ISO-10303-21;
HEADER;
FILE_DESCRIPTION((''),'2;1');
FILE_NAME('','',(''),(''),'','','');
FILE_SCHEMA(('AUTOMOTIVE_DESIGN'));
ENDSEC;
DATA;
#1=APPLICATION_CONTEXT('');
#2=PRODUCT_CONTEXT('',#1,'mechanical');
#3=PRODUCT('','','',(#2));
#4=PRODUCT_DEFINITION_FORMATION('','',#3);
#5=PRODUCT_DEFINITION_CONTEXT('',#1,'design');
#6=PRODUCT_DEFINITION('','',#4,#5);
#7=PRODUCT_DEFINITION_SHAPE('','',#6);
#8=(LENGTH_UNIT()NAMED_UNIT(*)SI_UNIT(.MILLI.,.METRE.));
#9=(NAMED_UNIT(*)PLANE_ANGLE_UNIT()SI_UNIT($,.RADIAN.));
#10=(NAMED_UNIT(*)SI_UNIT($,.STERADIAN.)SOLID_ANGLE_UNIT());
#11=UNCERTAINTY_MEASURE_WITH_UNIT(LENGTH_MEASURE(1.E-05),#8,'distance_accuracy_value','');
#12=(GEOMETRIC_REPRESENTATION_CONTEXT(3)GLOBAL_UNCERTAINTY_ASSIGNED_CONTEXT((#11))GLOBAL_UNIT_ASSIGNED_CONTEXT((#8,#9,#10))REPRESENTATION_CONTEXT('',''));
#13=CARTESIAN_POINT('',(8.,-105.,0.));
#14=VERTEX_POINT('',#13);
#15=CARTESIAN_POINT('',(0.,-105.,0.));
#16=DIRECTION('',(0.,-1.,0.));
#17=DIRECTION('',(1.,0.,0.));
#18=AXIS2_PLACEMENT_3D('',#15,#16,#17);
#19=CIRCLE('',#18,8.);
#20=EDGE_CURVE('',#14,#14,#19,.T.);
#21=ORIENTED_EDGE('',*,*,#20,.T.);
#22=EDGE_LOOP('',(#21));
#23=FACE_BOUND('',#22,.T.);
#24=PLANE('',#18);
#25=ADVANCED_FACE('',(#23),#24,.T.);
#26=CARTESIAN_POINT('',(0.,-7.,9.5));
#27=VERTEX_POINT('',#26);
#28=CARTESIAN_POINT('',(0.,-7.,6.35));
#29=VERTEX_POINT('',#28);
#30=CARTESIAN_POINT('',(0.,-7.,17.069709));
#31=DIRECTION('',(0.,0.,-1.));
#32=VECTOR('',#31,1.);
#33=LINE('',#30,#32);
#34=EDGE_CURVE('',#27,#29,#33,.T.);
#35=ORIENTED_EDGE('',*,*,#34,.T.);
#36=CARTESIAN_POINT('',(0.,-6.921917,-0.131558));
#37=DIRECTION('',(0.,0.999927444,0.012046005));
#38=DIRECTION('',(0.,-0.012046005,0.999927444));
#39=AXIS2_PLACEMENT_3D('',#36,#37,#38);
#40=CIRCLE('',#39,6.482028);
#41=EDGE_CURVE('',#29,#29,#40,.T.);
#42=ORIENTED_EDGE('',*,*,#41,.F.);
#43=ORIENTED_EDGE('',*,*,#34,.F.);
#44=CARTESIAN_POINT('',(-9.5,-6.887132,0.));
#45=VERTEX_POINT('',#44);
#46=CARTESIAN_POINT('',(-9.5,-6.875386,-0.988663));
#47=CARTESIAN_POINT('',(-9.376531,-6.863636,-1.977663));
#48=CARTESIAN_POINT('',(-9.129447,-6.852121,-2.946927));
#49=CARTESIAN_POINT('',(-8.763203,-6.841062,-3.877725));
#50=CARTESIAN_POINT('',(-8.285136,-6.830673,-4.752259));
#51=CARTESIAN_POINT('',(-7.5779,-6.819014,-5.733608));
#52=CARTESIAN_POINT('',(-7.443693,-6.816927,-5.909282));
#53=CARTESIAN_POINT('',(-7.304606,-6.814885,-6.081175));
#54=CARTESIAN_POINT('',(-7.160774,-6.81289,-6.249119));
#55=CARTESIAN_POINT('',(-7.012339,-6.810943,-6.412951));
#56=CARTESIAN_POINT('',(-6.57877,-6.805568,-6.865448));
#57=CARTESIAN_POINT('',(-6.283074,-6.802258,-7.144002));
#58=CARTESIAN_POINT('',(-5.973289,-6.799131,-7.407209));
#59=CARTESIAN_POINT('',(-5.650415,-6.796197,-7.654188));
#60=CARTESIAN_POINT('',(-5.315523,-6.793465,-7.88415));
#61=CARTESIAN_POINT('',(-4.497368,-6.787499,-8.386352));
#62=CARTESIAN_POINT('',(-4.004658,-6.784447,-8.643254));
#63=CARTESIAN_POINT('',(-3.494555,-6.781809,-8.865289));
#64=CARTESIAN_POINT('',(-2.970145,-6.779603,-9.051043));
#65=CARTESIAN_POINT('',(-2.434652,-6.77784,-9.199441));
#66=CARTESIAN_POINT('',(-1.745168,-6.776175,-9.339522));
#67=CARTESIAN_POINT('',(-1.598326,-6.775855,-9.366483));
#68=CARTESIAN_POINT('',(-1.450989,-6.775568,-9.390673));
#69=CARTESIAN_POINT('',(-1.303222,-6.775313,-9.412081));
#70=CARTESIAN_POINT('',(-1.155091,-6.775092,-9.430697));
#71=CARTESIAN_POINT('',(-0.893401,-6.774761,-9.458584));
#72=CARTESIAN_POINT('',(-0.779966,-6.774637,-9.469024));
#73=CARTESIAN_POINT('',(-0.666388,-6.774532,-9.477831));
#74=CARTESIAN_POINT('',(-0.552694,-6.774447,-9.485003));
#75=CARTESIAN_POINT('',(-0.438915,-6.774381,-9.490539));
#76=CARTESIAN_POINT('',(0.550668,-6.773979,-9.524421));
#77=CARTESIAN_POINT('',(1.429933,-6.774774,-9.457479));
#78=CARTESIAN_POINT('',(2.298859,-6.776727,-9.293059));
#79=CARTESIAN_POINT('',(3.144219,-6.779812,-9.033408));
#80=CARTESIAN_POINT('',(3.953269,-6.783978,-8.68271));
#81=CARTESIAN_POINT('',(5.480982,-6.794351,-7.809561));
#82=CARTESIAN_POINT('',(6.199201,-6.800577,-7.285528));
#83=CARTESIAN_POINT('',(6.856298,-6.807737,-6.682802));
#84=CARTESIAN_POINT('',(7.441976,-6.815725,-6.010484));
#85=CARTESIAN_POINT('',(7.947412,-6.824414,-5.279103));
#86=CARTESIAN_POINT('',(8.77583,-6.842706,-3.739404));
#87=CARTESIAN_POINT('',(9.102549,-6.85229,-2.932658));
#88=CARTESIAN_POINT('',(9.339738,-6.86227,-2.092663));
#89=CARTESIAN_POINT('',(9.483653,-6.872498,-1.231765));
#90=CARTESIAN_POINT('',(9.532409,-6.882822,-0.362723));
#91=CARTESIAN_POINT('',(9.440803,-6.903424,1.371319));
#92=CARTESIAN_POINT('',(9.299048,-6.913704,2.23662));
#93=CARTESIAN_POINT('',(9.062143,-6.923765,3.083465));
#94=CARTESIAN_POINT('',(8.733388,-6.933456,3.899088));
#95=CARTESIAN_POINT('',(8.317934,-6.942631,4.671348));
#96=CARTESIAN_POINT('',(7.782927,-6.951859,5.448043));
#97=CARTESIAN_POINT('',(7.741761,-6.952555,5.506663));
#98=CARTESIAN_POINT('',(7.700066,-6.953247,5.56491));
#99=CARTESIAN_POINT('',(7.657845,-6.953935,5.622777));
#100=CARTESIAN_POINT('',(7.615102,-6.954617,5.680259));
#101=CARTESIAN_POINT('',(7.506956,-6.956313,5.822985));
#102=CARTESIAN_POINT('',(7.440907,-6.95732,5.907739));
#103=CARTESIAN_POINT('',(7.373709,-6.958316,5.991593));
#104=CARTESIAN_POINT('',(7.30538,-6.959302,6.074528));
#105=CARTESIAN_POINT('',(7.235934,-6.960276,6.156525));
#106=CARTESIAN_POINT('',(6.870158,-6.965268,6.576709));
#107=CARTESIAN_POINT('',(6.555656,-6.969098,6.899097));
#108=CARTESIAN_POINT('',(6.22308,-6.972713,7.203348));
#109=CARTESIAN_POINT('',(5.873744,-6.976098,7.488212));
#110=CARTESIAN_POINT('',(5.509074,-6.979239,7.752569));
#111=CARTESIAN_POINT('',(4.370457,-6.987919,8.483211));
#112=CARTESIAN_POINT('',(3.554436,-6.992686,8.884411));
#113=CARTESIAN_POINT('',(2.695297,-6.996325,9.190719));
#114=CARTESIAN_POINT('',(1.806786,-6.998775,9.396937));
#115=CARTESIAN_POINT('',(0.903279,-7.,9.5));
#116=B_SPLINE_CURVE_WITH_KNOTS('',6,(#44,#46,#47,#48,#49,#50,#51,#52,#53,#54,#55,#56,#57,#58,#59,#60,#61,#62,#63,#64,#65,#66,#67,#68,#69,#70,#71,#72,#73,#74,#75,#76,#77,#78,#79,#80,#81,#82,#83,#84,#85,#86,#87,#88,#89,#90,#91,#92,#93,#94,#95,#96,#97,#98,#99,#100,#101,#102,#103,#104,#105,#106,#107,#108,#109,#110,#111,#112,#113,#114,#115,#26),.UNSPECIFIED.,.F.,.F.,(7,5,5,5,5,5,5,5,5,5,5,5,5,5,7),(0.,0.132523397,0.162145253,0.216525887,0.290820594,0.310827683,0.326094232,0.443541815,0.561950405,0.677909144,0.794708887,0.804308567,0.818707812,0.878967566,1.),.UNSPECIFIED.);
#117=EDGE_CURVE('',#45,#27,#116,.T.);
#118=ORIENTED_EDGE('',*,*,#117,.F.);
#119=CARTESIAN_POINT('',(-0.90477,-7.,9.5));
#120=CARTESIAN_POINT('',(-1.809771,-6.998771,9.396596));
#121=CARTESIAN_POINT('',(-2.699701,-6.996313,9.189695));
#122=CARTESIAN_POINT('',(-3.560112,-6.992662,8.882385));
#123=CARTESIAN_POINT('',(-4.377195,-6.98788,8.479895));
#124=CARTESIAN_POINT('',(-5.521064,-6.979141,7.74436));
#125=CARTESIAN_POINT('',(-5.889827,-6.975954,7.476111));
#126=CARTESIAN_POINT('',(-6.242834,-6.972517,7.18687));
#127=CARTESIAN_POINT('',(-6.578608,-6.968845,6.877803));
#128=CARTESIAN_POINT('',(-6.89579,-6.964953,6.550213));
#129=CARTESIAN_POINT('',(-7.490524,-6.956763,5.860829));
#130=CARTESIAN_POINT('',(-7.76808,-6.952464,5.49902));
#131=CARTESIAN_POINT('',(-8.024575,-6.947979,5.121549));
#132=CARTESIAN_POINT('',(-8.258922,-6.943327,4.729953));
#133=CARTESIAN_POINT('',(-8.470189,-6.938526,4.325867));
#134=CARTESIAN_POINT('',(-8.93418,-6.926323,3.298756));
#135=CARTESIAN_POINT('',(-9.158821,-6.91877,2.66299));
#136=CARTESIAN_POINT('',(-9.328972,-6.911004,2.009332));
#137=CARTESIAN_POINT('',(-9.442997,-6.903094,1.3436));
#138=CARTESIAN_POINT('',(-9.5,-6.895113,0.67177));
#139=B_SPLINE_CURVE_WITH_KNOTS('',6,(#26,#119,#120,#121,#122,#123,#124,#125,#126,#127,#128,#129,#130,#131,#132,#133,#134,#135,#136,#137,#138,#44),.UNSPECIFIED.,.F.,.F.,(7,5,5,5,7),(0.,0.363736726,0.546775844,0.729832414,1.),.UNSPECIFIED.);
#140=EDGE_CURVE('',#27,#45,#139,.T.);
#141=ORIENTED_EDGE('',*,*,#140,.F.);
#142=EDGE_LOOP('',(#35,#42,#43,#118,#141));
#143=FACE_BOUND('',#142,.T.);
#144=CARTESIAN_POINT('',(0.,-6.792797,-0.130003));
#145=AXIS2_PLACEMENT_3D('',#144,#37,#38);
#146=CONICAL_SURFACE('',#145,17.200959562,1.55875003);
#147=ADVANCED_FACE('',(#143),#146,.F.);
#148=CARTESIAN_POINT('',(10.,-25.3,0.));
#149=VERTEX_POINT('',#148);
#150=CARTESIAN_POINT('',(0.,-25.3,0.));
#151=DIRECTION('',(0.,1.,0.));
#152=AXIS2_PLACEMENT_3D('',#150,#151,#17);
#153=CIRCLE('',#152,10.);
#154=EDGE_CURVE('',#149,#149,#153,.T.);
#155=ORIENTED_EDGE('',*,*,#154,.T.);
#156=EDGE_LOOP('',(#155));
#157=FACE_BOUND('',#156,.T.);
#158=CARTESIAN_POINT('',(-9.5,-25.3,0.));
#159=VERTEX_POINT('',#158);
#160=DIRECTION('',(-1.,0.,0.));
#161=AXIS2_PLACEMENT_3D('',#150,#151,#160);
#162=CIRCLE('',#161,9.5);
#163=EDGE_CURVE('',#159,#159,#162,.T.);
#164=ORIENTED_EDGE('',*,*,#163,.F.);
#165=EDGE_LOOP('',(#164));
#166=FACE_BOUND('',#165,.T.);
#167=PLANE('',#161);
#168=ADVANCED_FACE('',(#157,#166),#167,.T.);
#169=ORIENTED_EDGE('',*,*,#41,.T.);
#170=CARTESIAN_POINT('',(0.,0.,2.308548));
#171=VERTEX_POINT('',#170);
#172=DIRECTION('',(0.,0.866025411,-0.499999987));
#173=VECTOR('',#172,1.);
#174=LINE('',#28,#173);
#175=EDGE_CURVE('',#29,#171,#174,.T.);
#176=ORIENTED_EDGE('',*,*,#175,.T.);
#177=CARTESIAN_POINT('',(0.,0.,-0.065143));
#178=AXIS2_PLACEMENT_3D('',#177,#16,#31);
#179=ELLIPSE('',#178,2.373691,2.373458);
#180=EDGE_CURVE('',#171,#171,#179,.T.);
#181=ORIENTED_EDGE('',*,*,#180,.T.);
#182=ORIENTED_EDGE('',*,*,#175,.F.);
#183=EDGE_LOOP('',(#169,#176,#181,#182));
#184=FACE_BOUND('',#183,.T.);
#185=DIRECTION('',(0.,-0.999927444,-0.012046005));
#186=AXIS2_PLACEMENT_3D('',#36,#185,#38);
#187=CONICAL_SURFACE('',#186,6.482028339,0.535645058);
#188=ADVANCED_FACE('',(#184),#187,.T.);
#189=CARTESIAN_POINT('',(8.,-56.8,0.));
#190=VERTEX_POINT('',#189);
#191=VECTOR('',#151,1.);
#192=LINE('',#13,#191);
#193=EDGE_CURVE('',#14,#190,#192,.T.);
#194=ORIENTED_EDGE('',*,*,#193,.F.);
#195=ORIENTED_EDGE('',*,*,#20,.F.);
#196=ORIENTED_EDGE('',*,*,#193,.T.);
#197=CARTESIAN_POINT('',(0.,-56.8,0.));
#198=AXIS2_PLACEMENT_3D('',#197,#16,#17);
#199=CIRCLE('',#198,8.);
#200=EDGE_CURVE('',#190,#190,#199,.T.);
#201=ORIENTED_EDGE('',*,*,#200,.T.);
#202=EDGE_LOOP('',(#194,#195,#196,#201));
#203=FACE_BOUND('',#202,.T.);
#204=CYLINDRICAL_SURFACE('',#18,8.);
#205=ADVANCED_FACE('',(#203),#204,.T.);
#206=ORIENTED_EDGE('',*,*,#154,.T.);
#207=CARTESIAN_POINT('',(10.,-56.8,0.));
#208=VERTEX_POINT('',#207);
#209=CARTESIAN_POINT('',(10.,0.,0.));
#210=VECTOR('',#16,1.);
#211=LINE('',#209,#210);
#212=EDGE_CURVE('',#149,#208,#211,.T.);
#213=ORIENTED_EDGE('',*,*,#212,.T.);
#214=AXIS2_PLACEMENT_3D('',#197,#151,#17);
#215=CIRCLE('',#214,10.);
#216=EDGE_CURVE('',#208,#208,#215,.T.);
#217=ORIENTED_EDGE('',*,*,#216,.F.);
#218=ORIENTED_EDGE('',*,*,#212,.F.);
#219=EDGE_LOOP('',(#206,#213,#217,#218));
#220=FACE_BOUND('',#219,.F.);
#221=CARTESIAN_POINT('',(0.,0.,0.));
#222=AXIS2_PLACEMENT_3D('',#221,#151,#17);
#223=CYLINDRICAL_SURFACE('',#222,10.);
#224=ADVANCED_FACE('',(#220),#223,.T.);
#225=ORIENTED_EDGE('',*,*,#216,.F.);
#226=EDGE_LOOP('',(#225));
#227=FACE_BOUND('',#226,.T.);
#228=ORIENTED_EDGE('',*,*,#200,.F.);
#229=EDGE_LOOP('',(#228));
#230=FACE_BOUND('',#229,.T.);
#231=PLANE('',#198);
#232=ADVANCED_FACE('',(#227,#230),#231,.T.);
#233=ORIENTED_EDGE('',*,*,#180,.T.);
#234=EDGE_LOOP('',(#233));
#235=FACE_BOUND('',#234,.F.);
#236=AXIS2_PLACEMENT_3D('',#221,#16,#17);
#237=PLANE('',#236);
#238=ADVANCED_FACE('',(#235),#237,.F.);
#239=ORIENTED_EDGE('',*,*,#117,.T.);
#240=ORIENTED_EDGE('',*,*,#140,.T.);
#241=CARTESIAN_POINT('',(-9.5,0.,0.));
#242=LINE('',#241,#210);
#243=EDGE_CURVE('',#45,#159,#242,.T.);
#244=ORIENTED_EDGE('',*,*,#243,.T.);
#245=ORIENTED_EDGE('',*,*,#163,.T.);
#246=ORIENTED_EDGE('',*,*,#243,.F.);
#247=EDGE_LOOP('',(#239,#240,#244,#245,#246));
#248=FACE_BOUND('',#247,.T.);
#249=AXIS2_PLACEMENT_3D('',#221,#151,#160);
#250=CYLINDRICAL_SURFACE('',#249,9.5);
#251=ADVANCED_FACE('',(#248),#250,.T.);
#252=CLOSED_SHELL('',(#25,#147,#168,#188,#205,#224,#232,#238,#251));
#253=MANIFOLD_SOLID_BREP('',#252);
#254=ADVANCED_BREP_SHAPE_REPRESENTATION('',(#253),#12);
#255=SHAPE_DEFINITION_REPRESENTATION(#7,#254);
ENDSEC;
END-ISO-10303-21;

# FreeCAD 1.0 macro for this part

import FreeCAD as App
import Part
import Sketcher

V = App.Vector
Q = App.Units.Quantity


def add_polygon(sketch, points):
    """Adds a closed chain of lines whose ends are joined by coincident constraints."""
    first, n = sketch.GeometryCount, len(points)
    for a, b in zip(points, points[1:] + points[:1]):
        sketch.addGeometry(Part.LineSegment(App.Vector(*a, 0), App.Vector(*b, 0)), False)
    for i in range(n):
        sketch.addConstraint(Sketcher.Constraint("Coincident", first + i, 2, first + (i + 1) % n, 1))

doc = App.newDocument("Part")
params = doc.addObject("Spreadsheet::Sheet", "Params")
for row, (alias, value) in enumerate([
    ("sketch1_diameter", "20 mm"),
    ("pad1_length", "105 mm"),
    ("sketch2_diameter", "19 mm"),
    ("pocket1_length", "25.3 mm"),
    ("sketch3_length", "12.7 mm"),
    ("groove_angle", "360 deg"),
    ("sketch4_diameter", "16 mm"),
    ("pocket2_length", "48.2 mm"),
], start=1):
    params.set(f"A{row}", alias)
    params.set(f"B{row}", "=" + value)
    params.setAlias(f"B{row}", alias)

body = doc.addObject("PartDesign::Body", "Body")

sketch1 = body.newObject("Sketcher::SketchObject", "Sketch")
sketch1.AttachmentSupport = (doc.getObject("XZ_Plane"), [""])
sketch1.MapMode = "FlatFace"
sketch1.addGeometry(Part.Circle(V(0, 0, 0), V(0, 0, 1), 10), False)
sketch1.addConstraint([
    Sketcher.Constraint("Coincident", 0, 3, -1, 1),
    Sketcher.Constraint("Diameter", 0, 20.0),
])
sketch1.setExpression("Constraints[1]", "Params.sketch1_diameter")
pad1 = body.newObject("PartDesign::Pad", "Pad")
pad1.Profile = sketch1
pad1.setExpression("Length", "Params.pad1_length")

sketch2 = body.newObject("Sketcher::SketchObject", "Sketch001")
sketch2.AttachmentSupport = (doc.getObject("XZ_Plane"), [""])
sketch2.MapMode = "FlatFace"
sketch2.addGeometry([
    Part.Circle(V(0, 0, 0), V(0, 0, 1), 16),
    Part.Circle(V(0, 0, 0), V(0, 0, 1), 10),
], False)
sketch2.addConstraint([
    Sketcher.Constraint("Coincident", 0, 3, -1, 1),
    Sketcher.Constraint("Coincident", 1, 3, -1, 1),
    Sketcher.Constraint("Diameter", 1, 19.0),
    Sketcher.Constraint("Diameter", 0, 31.65997),
])
sketch2.setExpression("Constraints[2]", "Params.sketch2_diameter")
pocket1 = body.newObject("PartDesign::Pocket", "Pocket")
pocket1.Profile = sketch2
pocket1.setExpression("Length", "Params.pocket1_length")
pocket1.Reversed = True

sketch3 = body.newObject("Sketcher::SketchObject", "Sketch002")
sketch3.AttachmentSupport = (doc.getObject("YZ_Plane"), [""])
sketch3.MapMode = "FlatFace"
add_polygon(sketch3, [(-7, 17.1), (-7, 6.3), (4, 0), (6.9, 0), (6.7, 17.1)])
sketch3.addGeometry(Part.LineSegment(V(-6.9, -0.1, 0), V(6.9, 0, 0)), True)
sketch3.addConstraint([
    Sketcher.Constraint("Vertical", 0),
    Sketcher.Constraint("Horizontal", 4),
    Sketcher.Constraint("Coincident", 5, 2, 2, 2),
    Sketcher.Constraint("PointOnObject", 1, 2, -1),
    Sketcher.Constraint("Perpendicular", 2, 3),
    Sketcher.Constraint("Perpendicular", 3, 5),
    Sketcher.Constraint("Angle", 1, Q("-29.999999 deg")),
    Sketcher.Constraint("DistanceX", 0, 2, -1, 1, 7.0),
    Sketcher.Constraint("Distance", 1, 12.7),
    Sketcher.Constraint("DistanceY", 0, 2, 0, 1, 10.719709),
    Sketcher.Constraint("DistanceX", -1, 1, 5, 2, 6.9073),
    Sketcher.Constraint("DistanceY", 5, 1, 2, 2, 0.166599),
    Sketcher.Constraint("Distance", 5, 13.83022),
])
sketch3.setExpression("Constraints[13]", "Params.sketch3_length")
groove = body.newObject("PartDesign::Groove", "Groove")
groove.Profile = sketch3
groove.ReferenceAxis = (sketch3, ["Axis0"])
groove.setExpression("Angle", "Params.groove_angle")

sketch4 = body.newObject("Sketcher::SketchObject", "Sketch003")
sketch4.AttachmentSupport = (doc.getObject("XZ_Plane"), [""])
sketch4.MapMode = "FlatFace"
sketch4.AttachmentOffset = App.Placement(V(0, 0, 105), App.Rotation())
sketch4.addGeometry([
    Part.Circle(V(0, 0, 0), V(0, 0, 1), 18),
    Part.Circle(V(0, 0, 0), V(0, 0, 1), 8),
], False)
sketch4.addConstraint([
    Sketcher.Constraint("Coincident", 0, 3, -1, 1),
    Sketcher.Constraint("Coincident", 1, 3, -1, 1),
    Sketcher.Constraint("Diameter", 1, 16.0),
    Sketcher.Constraint("Diameter", 0, 35.854364),
])
sketch4.setExpression("Constraints[2]", "Params.sketch4_diameter")
pocket2 = body.newObject("PartDesign::Pocket", "Pocket001")
pocket2.Profile = sketch4
pocket2.setExpression("Length", "Params.pocket2_length")

doc.recompute()
